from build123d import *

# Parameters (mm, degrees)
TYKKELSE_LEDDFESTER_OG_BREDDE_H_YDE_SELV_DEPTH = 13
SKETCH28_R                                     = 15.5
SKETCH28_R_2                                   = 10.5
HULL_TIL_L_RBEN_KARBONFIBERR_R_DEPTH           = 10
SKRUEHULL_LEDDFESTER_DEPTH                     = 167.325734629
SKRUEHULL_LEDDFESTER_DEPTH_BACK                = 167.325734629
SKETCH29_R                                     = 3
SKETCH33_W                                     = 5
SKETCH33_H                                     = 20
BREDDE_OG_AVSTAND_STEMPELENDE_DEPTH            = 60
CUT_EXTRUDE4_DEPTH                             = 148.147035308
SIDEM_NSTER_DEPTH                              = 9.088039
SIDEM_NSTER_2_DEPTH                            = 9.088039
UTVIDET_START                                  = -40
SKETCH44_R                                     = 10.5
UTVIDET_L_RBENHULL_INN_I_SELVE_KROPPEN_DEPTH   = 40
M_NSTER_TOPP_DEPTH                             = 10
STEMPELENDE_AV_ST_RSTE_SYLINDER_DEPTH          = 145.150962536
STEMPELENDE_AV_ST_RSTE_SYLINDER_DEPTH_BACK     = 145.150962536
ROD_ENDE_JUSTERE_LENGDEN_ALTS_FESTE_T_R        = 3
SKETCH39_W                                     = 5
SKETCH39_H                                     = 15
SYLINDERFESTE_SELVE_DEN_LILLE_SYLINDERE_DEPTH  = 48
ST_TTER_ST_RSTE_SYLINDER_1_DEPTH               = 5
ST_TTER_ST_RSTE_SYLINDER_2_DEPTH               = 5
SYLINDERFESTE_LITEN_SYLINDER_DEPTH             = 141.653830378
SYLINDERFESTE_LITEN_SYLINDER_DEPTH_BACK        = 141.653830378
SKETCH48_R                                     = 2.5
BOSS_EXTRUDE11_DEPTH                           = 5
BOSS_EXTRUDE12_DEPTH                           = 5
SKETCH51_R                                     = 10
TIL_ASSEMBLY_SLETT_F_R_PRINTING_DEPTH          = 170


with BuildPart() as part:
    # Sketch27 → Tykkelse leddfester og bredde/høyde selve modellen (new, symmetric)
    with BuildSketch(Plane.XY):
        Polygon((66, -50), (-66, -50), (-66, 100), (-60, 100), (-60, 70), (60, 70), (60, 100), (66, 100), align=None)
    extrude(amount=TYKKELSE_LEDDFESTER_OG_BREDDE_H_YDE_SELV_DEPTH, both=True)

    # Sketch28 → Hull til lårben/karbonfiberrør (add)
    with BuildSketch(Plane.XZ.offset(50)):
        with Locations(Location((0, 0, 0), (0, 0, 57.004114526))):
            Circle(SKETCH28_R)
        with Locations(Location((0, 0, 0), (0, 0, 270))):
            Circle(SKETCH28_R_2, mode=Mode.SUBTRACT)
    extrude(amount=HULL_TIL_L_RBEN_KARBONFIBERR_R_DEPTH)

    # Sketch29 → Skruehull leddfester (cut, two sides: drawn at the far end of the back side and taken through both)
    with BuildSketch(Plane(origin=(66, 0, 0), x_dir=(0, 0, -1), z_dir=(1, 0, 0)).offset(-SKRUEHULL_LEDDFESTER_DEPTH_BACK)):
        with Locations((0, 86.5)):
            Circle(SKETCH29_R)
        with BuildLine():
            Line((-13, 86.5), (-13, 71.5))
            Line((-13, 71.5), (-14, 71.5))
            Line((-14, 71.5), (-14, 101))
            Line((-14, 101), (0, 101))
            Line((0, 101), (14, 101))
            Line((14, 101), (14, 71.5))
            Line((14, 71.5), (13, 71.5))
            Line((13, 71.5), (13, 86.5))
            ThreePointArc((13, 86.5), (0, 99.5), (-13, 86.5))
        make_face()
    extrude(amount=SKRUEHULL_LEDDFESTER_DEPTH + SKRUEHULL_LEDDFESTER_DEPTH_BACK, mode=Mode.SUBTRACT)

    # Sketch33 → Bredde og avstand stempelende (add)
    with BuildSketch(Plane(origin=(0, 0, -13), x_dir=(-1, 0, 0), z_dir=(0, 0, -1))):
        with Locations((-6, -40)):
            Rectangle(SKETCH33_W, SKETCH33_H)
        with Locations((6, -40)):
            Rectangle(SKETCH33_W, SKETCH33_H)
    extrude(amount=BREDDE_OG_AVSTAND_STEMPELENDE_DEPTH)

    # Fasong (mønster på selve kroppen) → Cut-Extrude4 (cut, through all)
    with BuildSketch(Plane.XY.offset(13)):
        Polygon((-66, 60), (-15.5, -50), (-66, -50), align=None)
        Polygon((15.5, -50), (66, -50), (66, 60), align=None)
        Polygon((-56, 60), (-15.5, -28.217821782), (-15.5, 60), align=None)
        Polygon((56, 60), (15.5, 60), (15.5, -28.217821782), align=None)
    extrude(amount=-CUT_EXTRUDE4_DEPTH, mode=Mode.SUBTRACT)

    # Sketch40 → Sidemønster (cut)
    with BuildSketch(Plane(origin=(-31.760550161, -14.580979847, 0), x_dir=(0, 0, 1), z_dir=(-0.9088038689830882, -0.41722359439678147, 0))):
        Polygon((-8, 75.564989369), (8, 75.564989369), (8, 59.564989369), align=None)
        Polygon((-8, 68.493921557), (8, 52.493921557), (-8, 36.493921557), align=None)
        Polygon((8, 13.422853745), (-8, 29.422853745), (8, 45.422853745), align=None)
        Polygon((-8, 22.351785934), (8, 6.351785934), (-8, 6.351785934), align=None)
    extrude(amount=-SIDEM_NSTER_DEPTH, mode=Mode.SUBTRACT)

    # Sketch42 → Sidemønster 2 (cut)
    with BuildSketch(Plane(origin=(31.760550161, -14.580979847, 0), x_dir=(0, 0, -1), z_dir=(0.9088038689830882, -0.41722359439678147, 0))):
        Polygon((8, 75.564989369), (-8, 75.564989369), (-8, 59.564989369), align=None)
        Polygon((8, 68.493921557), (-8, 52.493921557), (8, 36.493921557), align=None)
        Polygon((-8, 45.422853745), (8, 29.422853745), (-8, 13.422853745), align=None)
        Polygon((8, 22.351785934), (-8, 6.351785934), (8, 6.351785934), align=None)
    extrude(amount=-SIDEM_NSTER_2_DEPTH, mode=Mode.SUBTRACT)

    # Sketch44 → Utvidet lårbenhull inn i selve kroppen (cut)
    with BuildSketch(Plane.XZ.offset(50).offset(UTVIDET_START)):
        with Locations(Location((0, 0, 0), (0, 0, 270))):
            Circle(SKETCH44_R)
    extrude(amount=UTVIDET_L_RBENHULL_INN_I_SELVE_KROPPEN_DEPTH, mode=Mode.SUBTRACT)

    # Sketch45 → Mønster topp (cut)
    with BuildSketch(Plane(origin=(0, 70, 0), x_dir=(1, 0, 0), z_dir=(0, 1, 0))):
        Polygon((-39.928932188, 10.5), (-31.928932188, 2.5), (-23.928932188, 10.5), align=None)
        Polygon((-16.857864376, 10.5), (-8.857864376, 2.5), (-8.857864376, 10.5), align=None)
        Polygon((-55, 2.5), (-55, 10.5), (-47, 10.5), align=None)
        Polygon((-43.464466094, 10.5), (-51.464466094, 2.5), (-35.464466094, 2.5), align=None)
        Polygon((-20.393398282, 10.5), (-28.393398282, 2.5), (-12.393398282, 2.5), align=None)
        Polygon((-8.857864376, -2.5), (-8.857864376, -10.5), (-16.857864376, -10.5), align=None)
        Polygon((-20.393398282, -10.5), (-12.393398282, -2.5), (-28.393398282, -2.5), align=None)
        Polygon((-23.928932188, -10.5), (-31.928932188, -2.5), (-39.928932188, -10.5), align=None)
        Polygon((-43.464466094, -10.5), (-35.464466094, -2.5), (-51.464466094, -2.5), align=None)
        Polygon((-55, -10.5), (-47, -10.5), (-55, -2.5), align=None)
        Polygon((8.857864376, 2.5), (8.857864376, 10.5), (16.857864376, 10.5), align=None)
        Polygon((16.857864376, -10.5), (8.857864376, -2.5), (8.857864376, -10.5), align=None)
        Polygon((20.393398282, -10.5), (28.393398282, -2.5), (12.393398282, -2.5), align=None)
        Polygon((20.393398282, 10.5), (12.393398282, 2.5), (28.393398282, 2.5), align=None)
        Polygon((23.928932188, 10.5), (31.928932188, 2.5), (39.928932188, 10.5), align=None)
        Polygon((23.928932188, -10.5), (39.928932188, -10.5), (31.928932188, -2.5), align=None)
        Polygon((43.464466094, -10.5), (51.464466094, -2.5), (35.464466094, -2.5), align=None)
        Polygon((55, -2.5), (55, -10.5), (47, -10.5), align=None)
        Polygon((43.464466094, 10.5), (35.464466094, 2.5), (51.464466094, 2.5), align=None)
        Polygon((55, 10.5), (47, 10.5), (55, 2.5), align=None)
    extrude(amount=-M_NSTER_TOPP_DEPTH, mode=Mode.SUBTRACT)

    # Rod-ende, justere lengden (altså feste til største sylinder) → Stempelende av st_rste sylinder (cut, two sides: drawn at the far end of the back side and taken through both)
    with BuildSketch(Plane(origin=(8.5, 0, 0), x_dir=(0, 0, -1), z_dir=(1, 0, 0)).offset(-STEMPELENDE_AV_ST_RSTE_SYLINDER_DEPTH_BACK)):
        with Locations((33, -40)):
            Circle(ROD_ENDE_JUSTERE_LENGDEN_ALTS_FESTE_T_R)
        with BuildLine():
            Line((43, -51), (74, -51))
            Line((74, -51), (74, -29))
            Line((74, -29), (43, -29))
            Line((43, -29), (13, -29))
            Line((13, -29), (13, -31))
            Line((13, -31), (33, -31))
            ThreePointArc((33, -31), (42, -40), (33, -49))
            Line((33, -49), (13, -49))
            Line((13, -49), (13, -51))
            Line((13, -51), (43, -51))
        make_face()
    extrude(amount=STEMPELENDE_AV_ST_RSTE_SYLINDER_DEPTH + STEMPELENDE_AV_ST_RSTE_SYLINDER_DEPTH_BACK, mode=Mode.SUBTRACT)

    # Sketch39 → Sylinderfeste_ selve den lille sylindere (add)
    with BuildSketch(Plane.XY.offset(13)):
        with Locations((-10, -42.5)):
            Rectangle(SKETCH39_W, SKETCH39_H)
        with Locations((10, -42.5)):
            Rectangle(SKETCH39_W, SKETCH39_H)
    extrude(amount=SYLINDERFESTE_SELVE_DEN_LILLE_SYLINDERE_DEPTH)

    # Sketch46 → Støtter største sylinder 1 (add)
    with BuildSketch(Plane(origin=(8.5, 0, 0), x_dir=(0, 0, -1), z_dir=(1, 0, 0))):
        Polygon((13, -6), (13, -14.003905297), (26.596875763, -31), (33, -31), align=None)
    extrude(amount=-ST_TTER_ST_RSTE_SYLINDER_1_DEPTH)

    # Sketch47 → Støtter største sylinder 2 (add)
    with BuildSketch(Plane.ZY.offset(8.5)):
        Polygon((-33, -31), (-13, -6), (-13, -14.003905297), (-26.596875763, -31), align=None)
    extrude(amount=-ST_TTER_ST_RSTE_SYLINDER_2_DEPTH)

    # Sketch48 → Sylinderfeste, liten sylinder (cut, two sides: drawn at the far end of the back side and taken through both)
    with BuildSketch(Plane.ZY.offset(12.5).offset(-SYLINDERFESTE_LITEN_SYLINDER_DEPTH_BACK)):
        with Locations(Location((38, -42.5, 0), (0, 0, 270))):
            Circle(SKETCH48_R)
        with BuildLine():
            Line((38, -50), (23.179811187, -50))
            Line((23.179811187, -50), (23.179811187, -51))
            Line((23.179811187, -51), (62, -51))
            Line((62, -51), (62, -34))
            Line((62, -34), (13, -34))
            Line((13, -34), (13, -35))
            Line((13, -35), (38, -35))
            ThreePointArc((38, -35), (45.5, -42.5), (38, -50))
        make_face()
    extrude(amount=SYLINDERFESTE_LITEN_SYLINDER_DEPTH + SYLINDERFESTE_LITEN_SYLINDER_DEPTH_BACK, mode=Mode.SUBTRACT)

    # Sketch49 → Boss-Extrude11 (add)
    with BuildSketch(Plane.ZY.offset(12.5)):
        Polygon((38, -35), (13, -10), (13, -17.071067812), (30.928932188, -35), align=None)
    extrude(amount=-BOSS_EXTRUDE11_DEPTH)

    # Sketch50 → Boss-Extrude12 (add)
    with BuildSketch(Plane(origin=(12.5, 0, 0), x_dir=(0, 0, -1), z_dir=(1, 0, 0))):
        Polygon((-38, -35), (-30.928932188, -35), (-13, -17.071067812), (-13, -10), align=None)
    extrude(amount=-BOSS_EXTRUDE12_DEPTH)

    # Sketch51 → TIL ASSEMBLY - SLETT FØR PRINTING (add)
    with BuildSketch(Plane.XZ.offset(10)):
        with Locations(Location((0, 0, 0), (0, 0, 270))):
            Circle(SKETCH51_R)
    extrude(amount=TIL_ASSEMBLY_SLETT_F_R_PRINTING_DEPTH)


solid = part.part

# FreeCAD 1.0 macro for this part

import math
import FreeCAD as App
import Part
import Sketcher

V = App.Vector
Q = App.Units.Quantity


def add_polygon(sketch, points):
    """Adds a closed chain of lines whose ends are joined by coincident constraints."""
    first, n = sketch.GeometryCount, len(points)
    for a, b in zip(points, points[1:] + points[:1]):
        sketch.addGeometry(Part.LineSegment(App.Vector(*a, 0), App.Vector(*b, 0)), False)
    for i in range(n):
        sketch.addConstraint(Sketcher.Constraint("Coincident", first + i, 2, first + (i + 1) % n, 1))

doc = App.newDocument("Part")
body = doc.addObject("PartDesign::Body", "Body")

sketch1 = body.newObject("Sketcher::SketchObject", "Sketch")
sketch1.AttachmentSupport = (doc.getObject("XY_Plane"), [""])
sketch1.MapMode = "FlatFace"
add_polygon(sketch1, [(-66, -50), (66, -50), (66, 100), (60, 100), (60, 70), (-60, 70), (-60, 100), (-66, 100)])
sketch1.addConstraint(Sketcher.Constraint("Horizontal", 0))
sketch1.addConstraint(Sketcher.Constraint("Vertical", 1))
sketch1.addConstraint(Sketcher.Constraint("Horizontal", 2))
sketch1.addConstraint(Sketcher.Constraint("Vertical", 3))
sketch1.addConstraint(Sketcher.Constraint("Horizontal", 4))
sketch1.addConstraint(Sketcher.Constraint("Vertical", 5))
sketch1.addConstraint(Sketcher.Constraint("Horizontal", 6))
sketch1.addConstraint(Sketcher.Constraint("Vertical", 7))
sketch1.addConstraint(Sketcher.Constraint("Symmetric", 2, 2, 5, 2, -2))
sketch1.addConstraint(Sketcher.Constraint("Equal", 2, 6))
sketch1.addConstraint(Sketcher.Constraint("DistanceX", 0, 1, 0, 2, Q("132 mm")))
sketch1.addConstraint(Sketcher.Constraint("DistanceX", 2, 2, 2, 1, Q("6 mm")))
sketch1.addConstraint(Sketcher.Constraint("DistanceY", 1, 1, 1, 2, Q("150 mm")))
sketch1.addConstraint(Sketcher.Constraint("DistanceY", 3, 2, 3, 1, Q("30 mm")))
sketch1.addConstraint(Sketcher.Constraint("DistanceY", 0, 2, -1, 1, Q("50 mm")))
pad1 = body.newObject("PartDesign::Pad", "Pad")
pad1.Profile = sketch1
pad1.Length = 26
pad1.Midplane = True

sketch2 = body.newObject("Sketcher::SketchObject", "Sketch001")
sketch2.AttachmentSupport = (doc.getObject("XZ_Plane"), [""])
sketch2.MapMode = "FlatFace"
sketch2.AttachmentOffset = App.Placement(V(0, 0, 50), App.Rotation())
sketch2.addGeometry(Part.Circle(V(0, 0, 0), V(0, 0, 1), 15.5), False)
sketch2.addGeometry(Part.Circle(V(0, 0, 0), V(0, 0, 1), 10.5), False)
sketch2.addConstraint(Sketcher.Constraint("Coincident", 0, 3, -1, 1))
sketch2.addConstraint(Sketcher.Constraint("Coincident", 1, 3, -1, 1))
sketch2.addConstraint(Sketcher.Constraint("Diameter", 0, Q("31 mm")))
sketch2.addConstraint(Sketcher.Constraint("Diameter", 1, Q("21 mm")))
pad2 = body.newObject("PartDesign::Pad", "Pad001")
pad2.Profile = sketch2
pad2.Length = 10

sketch3 = body.newObject("Sketcher::SketchObject", "Sketch002")
sketch3.AttachmentSupport = (doc.getObject("YZ_Plane"), [""])
sketch3.MapMode = "FlatFace"
sketch3.AttachmentOffset = App.Placement(V(0, 0, 66), App.Rotation())
sketch3.addGeometry(Part.Circle(V(86.5, 0, 0), V(0, 0, 1), 3), False)
sketch3.addGeometry(Part.LineSegment(V(71.5, 13, 0), V(86.5, 13, 0)), False)
sketch3.addGeometry(Part.ArcOfCircle(Part.Circle(V(86.5, 0, 0), V(0, 0, 1), 13), math.radians(-90), math.radians(90)), False)
sketch3.addGeometry(Part.LineSegment(V(86.5, -13, 0), V(71.5, -13, 0)), False)
sketch3.addGeometry(Part.LineSegment(V(71.5, -13, 0), V(71.5, -14, 0)), False)
sketch3.addGeometry(Part.LineSegment(V(71.5, -14, 0), V(101, -14, 0)), False)
sketch3.addGeometry(Part.LineSegment(V(101, -14, 0), V(101, 14, 0)), False)
sketch3.addGeometry(Part.LineSegment(V(101, 14, 0), V(71.5, 14, 0)), False)
sketch3.addGeometry(Part.LineSegment(V(71.5, 14, 0), V(71.5, 13, 0)), False)
sketch3.addConstraint(Sketcher.Constraint("Tangent", 1, 2, 2, 2))
sketch3.addConstraint(Sketcher.Constraint("Tangent", 2, 1, 3, 1))
sketch3.addConstraint(Sketcher.Constraint("Coincident", 3, 2, 4, 1))
sketch3.addConstraint(Sketcher.Constraint("Coincident", 4, 2, 5, 1))
sketch3.addConstraint(Sketcher.Constraint("Coincident", 5, 2, 6, 1))
sketch3.addConstraint(Sketcher.Constraint("Coincident", 6, 2, 7, 1))
sketch3.addConstraint(Sketcher.Constraint("Coincident", 7, 2, 8, 1))
sketch3.addConstraint(Sketcher.Constraint("Coincident", 8, 2, 1, 1))
sketch3.addConstraint(Sketcher.Constraint("Horizontal", 1))
sketch3.addConstraint(Sketcher.Constraint("Horizontal", 3))
sketch3.addConstraint(Sketcher.Constraint("Vertical", 4))
sketch3.addConstraint(Sketcher.Constraint("Horizontal", 5))
sketch3.addConstraint(Sketcher.Constraint("Vertical", 6))
sketch3.addConstraint(Sketcher.Constraint("Horizontal", 7))
sketch3.addConstraint(Sketcher.Constraint("Vertical", 8))
sketch3.addConstraint(Sketcher.Constraint("Coincident", 2, 3, 0, 3))
sketch3.addConstraint(Sketcher.Constraint("Symmetric", 4, 2, 7, 2, -1))
sketch3.addConstraint(Sketcher.Constraint("PointOnObject", 0, 3, -1))
sketch3.addConstraint(Sketcher.Constraint("Diameter", 0, Q("6 mm")))
sketch3.addConstraint(Sketcher.Constraint("Radius", 2, Q("13 mm")))
sketch3.addConstraint(Sketcher.Constraint("DistanceX", 1, 1, 1, 2, Q("15 mm")))
sketch3.addConstraint(Sketcher.Constraint("DistanceY", 4, 2, 4, 1, Q("1 mm")))
sketch3.addConstraint(Sketcher.Constraint("DistanceX", 5, 1, 5, 2, Q("29.5 mm")))
sketch3.addConstraint(Sketcher.Constraint("DistanceX", -1, 1, 5, 2, Q("101 mm")))
pocket1 = body.newObject("PartDesign::Pocket", "Pocket")
pocket1.Profile = sketch3
pocket1.Type = "ThroughAll"
pocket1.Midplane = True

sketch4 = body.newObject("Sketcher::SketchObject", "Sketch003")
sketch4.AttachmentSupport = (doc.getObject("XY_Plane"), [""])
sketch4.MapMode = "FlatFace"
sketch4.AttachmentOffset = App.Placement(V(0, 0, -13), App.Rotation())
add_polygon(sketch4, [(8.5, -30), (8.5, -50), (3.5, -50), (3.5, -30)])
add_polygon(sketch4, [(-3.5, -30), (-3.5, -50), (-8.5, -50), (-8.5, -30)])
sketch4.addConstraint(Sketcher.Constraint("Vertical", 0))
sketch4.addConstraint(Sketcher.Constraint("Horizontal", 1))
sketch4.addConstraint(Sketcher.Constraint("Vertical", 2))
sketch4.addConstraint(Sketcher.Constraint("Horizontal", 3))
sketch4.addConstraint(Sketcher.Constraint("Vertical", 4))
sketch4.addConstraint(Sketcher.Constraint("Horizontal", 5))
sketch4.addConstraint(Sketcher.Constraint("Vertical", 6))
sketch4.addConstraint(Sketcher.Constraint("Horizontal", 7))
sketch4.addConstraint(Sketcher.Constraint("Symmetric", 1, 2, 4, 2, -2))
sketch4.addConstraint(Sketcher.Constraint("Symmetric", 3, 2, 6, 2, -2))
sketch4.addConstraint(Sketcher.Constraint("DistanceX", 1, 2, 1, 1, Q("5 mm")))
sketch4.addConstraint(Sketcher.Constraint("DistanceY", 0, 2, 0, 1, Q("20 mm")))
sketch4.addConstraint(Sketcher.Constraint("DistanceY", 0, 2, -1, 1, Q("50 mm")))
sketch4.addConstraint(Sketcher.Constraint("DistanceX", 4, 2, 1, 2, Q("7 mm")))
pad3 = body.newObject("PartDesign::Pad", "Pad002")
pad3.Profile = sketch4
pad3.Length = 60
pad3.Reversed = True

sketch5 = body.newObject("Sketcher::SketchObject", "Sketch004")
sketch5.AttachmentSupport = (doc.getObject("XY_Plane"), [""])
sketch5.MapMode = "FlatFace"
sketch5.AttachmentOffset = App.Placement(V(0, 0, 13), App.Rotation())
add_polygon(sketch5, [(-15.5, -50), (-66, 60), (-66, -50)])
add_polygon(sketch5, [(15.5, -50), (66, -50), (66, 60)])
add_polygon(sketch5, [(-56, 60), (-15.5, -28.217822), (-15.5, 60)])
add_polygon(sketch5, [(56, 60), (15.5, 60), (15.5, -28.217822)])
sketch5.addConstraint(Sketcher.Constraint("Vertical", 1))
sketch5.addConstraint(Sketcher.Constraint("Horizontal", 2))
sketch5.addConstraint(Sketcher.Constraint("Horizontal", 3))
sketch5.addConstraint(Sketcher.Constraint("Vertical", 4))
sketch5.addConstraint(Sketcher.Constraint("Vertical", 7))
sketch5.addConstraint(Sketcher.Constraint("Horizontal", 8))
sketch5.addConstraint(Sketcher.Constraint("Horizontal", 9))
sketch5.addConstraint(Sketcher.Constraint("Vertical", 10))
sketch5.addConstraint(Sketcher.Constraint("Symmetric", 1, 2, 3, 2, -2))
sketch5.addConstraint(Sketcher.Constraint("Symmetric", 7, 2, 9, 2, -2))
sketch5.addConstraint(Sketcher.Constraint("Parallel", 0, 6))
sketch5.addConstraint(Sketcher.Constraint("Parallel", 5, 11))
sketch5.addConstraint(Sketcher.Constraint("Horizontal", 0, 2, 4, 2))
sketch5.addConstraint(Sketcher.Constraint("Horizontal", 4, 2, 7, 2))
sketch5.addConstraint(Sketcher.Constraint("Horizontal", 6, 2, 10, 2))
sketch5.addConstraint(Sketcher.Constraint("Vertical", 2, 2, 6, 2))
sketch5.addConstraint(Sketcher.Constraint("Vertical", 5, 2, 9, 2))
sketch5.addConstraint(Sketcher.Constraint("DistanceY", 1, 2, 1, 1, Q("110 mm")))
sketch5.addConstraint(Sketcher.Constraint("DistanceX", 2, 1, 2, 2, Q("50.5 mm")))
sketch5.addConstraint(Sketcher.Constraint("DistanceX", 8, 2, 8, 1, Q("40.5 mm")))
sketch5.addConstraint(Sketcher.Constraint("DistanceX", 0, 2, -1, 1, Q("66 mm")))
sketch5.addConstraint(Sketcher.Constraint("DistanceY", -1, 1, 0, 2, Q("60 mm")))
pocket2 = body.newObject("PartDesign::Pocket", "Pocket001")
pocket2.Profile = sketch5
pocket2.Type = "ThroughAll"

sketch6 = body.newObject("Sketcher::SketchObject", "Sketch005")
sketch6.Placement = App.Placement(V(-31.76055, -14.58098, 0), App.Rotation(V(0, 0, 1), V(-0.417223594, 0.908803869, 0), V(-0.908803869, -0.417223594, 0), "ZXY"))
add_polygon(sketch6, [(8, 75.564989), (-8, 75.564989), (8, 59.564989)])
add_polygon(sketch6, [(8, 52.493922), (-8, 68.493922), (-8, 36.493922)])
add_polygon(sketch6, [(-8, 29.422854), (8, 13.422854), (8, 45.422854)])
add_polygon(sketch6, [(8, 6.351786), (-8, 22.351786), (-8, 6.351786)])
sketch6.addConstraint(Sketcher.Constraint("Horizontal", 0))
sketch6.addConstraint(Sketcher.Constraint("Vertical", 2))
sketch6.addConstraint(Sketcher.Constraint("Vertical", 4))
sketch6.addConstraint(Sketcher.Constraint("Vertical", 7))
sketch6.addConstraint(Sketcher.Constraint("Vertical", 10))
sketch6.addConstraint(Sketcher.Constraint("Horizontal", 11))
sketch6.addConstraint(Sketcher.Constraint("Parallel", 1, 3))
sketch6.addConstraint(Sketcher.Constraint("Perpendicular", 3, 5))
sketch6.addConstraint(Sketcher.Constraint("Perpendicular", 5, 6))
sketch6.addConstraint(Sketcher.Constraint("Perpendicular", 6, 8))
sketch6.addConstraint(Sketcher.Constraint("Perpendicular", 8, 9))
sketch6.addConstraint(Sketcher.Constraint("Vertical", 0, 2, 3, 2))
sketch6.addConstraint(Sketcher.Constraint("Vertical", 2, 2, 5, 2))
sketch6.addConstraint(Sketcher.Constraint("Vertical", 5, 2, 6, 2))
sketch6.addConstraint(Sketcher.Constraint("Vertical", 4, 2, 8, 2))
sketch6.addConstraint(Sketcher.Constraint("Vertical", 8, 2, 9, 2))
sketch6.addConstraint(Sketcher.Constraint("Vertical", 7, 2, 11, 2))
sketch6.addConstraint(Sketcher.Constraint("Equal", 11, 2))
sketch6.addConstraint(Sketcher.Constraint("DistanceX", 0, 2, 0, 1, Q("16 mm")))
sketch6.addConstraint(Sketcher.Constraint("DistanceX", 0, 2, -1, 1, Q("8 mm")))
sketch6.addConstraint(Sketcher.Constraint("DistanceY", -1, 1, 0, 2, Q("75.564989 mm")))
sketch6.addConstraint(Sketcher.Constraint("DistanceY", -1, 1, 3, 2, Q("68.493922 mm")))
sketch6.addConstraint(Sketcher.Constraint("DistanceY", -1, 1, 6, 2, Q("13.422854 mm")))
sketch6.addConstraint(Sketcher.Constraint("DistanceY", -1, 1, 9, 2, Q("22.351786 mm")))
pocket3 = body.newObject("PartDesign::Pocket", "Pocket002")
pocket3.Profile = sketch6
pocket3.Length = 9.088039

sketch7 = body.newObject("Sketcher::SketchObject", "Sketch006")
sketch7.Placement = App.Placement(V(31.76055, -14.58098, 0), App.Rotation(V(0, 0, -1), V(0.417223594, 0.908803869, 0), V(0.908803869, -0.417223594, 0), "ZXY"))
add_polygon(sketch7, [(8, 75.564989), (-8, 75.564989), (-8, 59.564989)])
add_polygon(sketch7, [(8, 68.493922), (-8, 52.493922), (8, 36.493922)])
add_polygon(sketch7, [(8, 29.422854), (-8, 45.422854), (-8, 13.422854)])
add_polygon(sketch7, [(8, 22.351786), (-8, 6.351786), (8, 6.351786)])
sketch7.addConstraint(Sketcher.Constraint("Horizontal", 0))
sketch7.addConstraint(Sketcher.Constraint("Vertical", 1))
sketch7.addConstraint(Sketcher.Constraint("Vertical", 5))
sketch7.addConstraint(Sketcher.Constraint("Vertical", 7))
sketch7.addConstraint(Sketcher.Constraint("Horizontal", 10))
sketch7.addConstraint(Sketcher.Constraint("Vertical", 11))
sketch7.addConstraint(Sketcher.Constraint("Parallel", 2, 3))
sketch7.addConstraint(Sketcher.Constraint("Perpendicular", 3, 4))
sketch7.addConstraint(Sketcher.Constraint("Parallel", 4, 6))
sketch7.addConstraint(Sketcher.Constraint("Perpendicular", 6, 8))
sketch7.addConstraint(Sketcher.Constraint("Parallel", 8, 9))
sketch7.addConstraint(Sketcher.Constraint("Vertical", 1, 2, 3, 2))
sketch7.addConstraint(Sketcher.Constraint("Vertical", 2, 2, 4, 2))
sketch7.addConstraint(Sketcher.Constraint("Vertical", 3, 2, 6, 2))
sketch7.addConstraint(Sketcher.Constraint("Vertical", 5, 2, 8, 2))
sketch7.addConstraint(Sketcher.Constraint("Vertical", 7, 2, 9, 2))
sketch7.addConstraint(Sketcher.Constraint("Vertical", 8, 2, 10, 2))
sketch7.addConstraint(Sketcher.Constraint("Equal", 10, 1))
sketch7.addConstraint(Sketcher.Constraint("DistanceX", 0, 2, 0, 1, Q("16 mm")))
sketch7.addConstraint(Sketcher.Constraint("DistanceX", 0, 2, -1, 1, Q("8 mm")))
sketch7.addConstraint(Sketcher.Constraint("DistanceY", -1, 1, 0, 2, Q("75.564989 mm")))
sketch7.addConstraint(Sketcher.Constraint("DistanceY", -1, 1, 3, 2, Q("52.493922 mm")))
sketch7.addConstraint(Sketcher.Constraint("DistanceY", -1, 1, 6, 2, Q("45.422854 mm")))
sketch7.addConstraint(Sketcher.Constraint("DistanceY", -1, 1, 9, 2, Q("6.351786 mm")))
pocket4 = body.newObject("PartDesign::Pocket", "Pocket003")
pocket4.Profile = sketch7
pocket4.Length = 9.088039

sketch8 = body.newObject("Sketcher::SketchObject", "Sketch007")
sketch8.AttachmentSupport = (doc.getObject("XZ_Plane"), [""])
sketch8.MapMode = "FlatFace"
sketch8.AttachmentOffset = App.Placement(V(0, 0, 10), App.Rotation())
sketch8.addGeometry(Part.Circle(V(0, 0, 0), V(0, 0, 1), 10.5), False)
sketch8.addConstraint(Sketcher.Constraint("Coincident", 0, 3, -1, 1))
sketch8.addConstraint(Sketcher.Constraint("Diameter", 0, Q("21 mm")))
pocket5 = body.newObject("PartDesign::Pocket", "Pocket004")
pocket5.Profile = sketch8
pocket5.Length = 40
pocket5.Reversed = True

sketch9 = body.newObject("Sketcher::SketchObject", "Sketch008")
sketch9.AttachmentSupport = (doc.getObject("XZ_Plane"), [""])
sketch9.MapMode = "FlatFace"
sketch9.AttachmentOffset = App.Placement(V(0, 0, -70), App.Rotation())
add_polygon(sketch9, [(-39.928932, -10.5), (-31.928932, -2.5), (-23.928932, -10.5)])
add_polygon(sketch9, [(-16.857864, -10.5), (-8.857864, -2.5), (-8.857864, -10.5)])
add_polygon(sketch9, [(-55, -10.5), (-55, -2.5), (-47, -10.5)])
add_polygon(sketch9, [(-43.464466, -10.5), (-51.464466, -2.5), (-35.464466, -2.5)])
add_polygon(sketch9, [(-20.393398, -10.5), (-28.393398, -2.5), (-12.393398, -2.5)])
add_polygon(sketch9, [(-8.857864, 10.5), (-8.857864, 2.5), (-16.857864, 10.5)])
add_polygon(sketch9, [(-20.393398, 10.5), (-12.393398, 2.5), (-28.393398, 2.5)])
add_polygon(sketch9, [(-23.928932, 10.5), (-31.928932, 2.5), (-39.928932, 10.5)])
add_polygon(sketch9, [(-43.464466, 10.5), (-35.464466, 2.5), (-51.464466, 2.5)])
add_polygon(sketch9, [(-55, 10.5), (-47, 10.5), (-55, 2.5)])
add_polygon(sketch9, [(8.857864, -10.5), (8.857864, -2.5), (16.857864, -10.5)])
add_polygon(sketch9, [(16.857864, 10.5), (8.857864, 2.5), (8.857864, 10.5)])
add_polygon(sketch9, [(20.393398, 10.5), (28.393398, 2.5), (12.393398, 2.5)])
add_polygon(sketch9, [(20.393398, -10.5), (12.393398, -2.5), (28.393398, -2.5)])
add_polygon(sketch9, [(23.928932, -10.5), (31.928932, -2.5), (39.928932, -10.5)])
add_polygon(sketch9, [(23.928932, 10.5), (39.928932, 10.5), (31.928932, 2.5)])
add_polygon(sketch9, [(43.464466, 10.5), (51.464466, 2.5), (35.464466, 2.5)])
add_polygon(sketch9, [(55, 10.5), (55, 2.5), (47, 10.5)])
add_polygon(sketch9, [(43.464466, -10.5), (35.464466, -2.5), (51.464466, -2.5)])
add_polygon(sketch9, [(55, -10.5), (47, -10.5), (55, -2.5)])
sketch9.addConstraint(Sketcher.Constraint("Horizontal", 2))
sketch9.addConstraint(Sketcher.Constraint("Vertical", 4))
sketch9.addConstraint(Sketcher.Constraint("Horizontal", 5))
sketch9.addConstraint(Sketcher.Constraint("Vertical", 6))
sketch9.addConstraint(Sketcher.Constraint("Horizontal", 8))
sketch9.addConstraint(Sketcher.Constraint("Horizontal", 10))
sketch9.addConstraint(Sketcher.Constraint("Horizontal", 13))
sketch9.addConstraint(Sketcher.Constraint("Vertical", 15))
sketch9.addConstraint(Sketcher.Constraint("Horizontal", 17))
sketch9.addConstraint(Sketcher.Constraint("Horizontal", 19))
sketch9.addConstraint(Sketcher.Constraint("Horizontal", 23))
sketch9.addConstraint(Sketcher.Constraint("Horizontal", 25))
sketch9.addConstraint(Sketcher.Constraint("Horizontal", 27))
sketch9.addConstraint(Sketcher.Constraint("Vertical", 29))
sketch9.addConstraint(Sketcher.Constraint("Vertical", 30))
sketch9.addConstraint(Sketcher.Constraint("Horizontal", 32))
sketch9.addConstraint(Sketcher.Constraint("Vertical", 34))
sketch9.addConstraint(Sketcher.Constraint("Horizontal", 35))
sketch9.addConstraint(Sketcher.Constraint("Horizontal", 37))
sketch9.addConstraint(Sketcher.Constraint("Horizontal", 40))
sketch9.addConstraint(Sketcher.Constraint("Horizontal", 44))
sketch9.addConstraint(Sketcher.Constraint("Horizontal", 45))
sketch9.addConstraint(Sketcher.Constraint("Horizontal", 49))
sketch9.addConstraint(Sketcher.Constraint("Vertical", 51))
sketch9.addConstraint(Sketcher.Constraint("Horizontal", 53))
sketch9.addConstraint(Sketcher.Constraint("Horizontal", 55))
sketch9.addConstraint(Sketcher.Constraint("Horizontal", 57))
sketch9.addConstraint(Sketcher.Constraint("Vertical", 59))
sketch9.addConstraint(Sketcher.Constraint("Symmetric", 15, 2, 30, 2, -1, 1))
sketch9.addConstraint(Sketcher.Constraint("Symmetric", 16, 2, 31, 2, -1, 1))
sketch9.addConstraint(Sketcher.Constraint("Symmetric", 3, 2, 33, 2, -1, 1))
sketch9.addConstraint(Sketcher.Constraint("Symmetric", 5, 2, 35, 2, -1, 1))
sketch9.addConstraint(Sketcher.Constraint("Symmetric", 12, 2, 36, 2, -1, 1))
sketch9.addConstraint(Sketcher.Constraint("Symmetric", 14, 2, 38, 2, -1, 1))
sketch9.addConstraint(Sketcher.Constraint("Symmetric", 18, 2, 39, 2, -1, 1))
sketch9.addConstraint(Sketcher.Constraint("Symmetric", 20, 2, 41, 2, -1, 1))
sketch9.addConstraint(Sketcher.Constraint("Symmetric", 21, 2, 42, 2, -1, 1))
sketch9.addConstraint(Sketcher.Constraint("Symmetric", 22, 2, 43, 2, -1, 1))
sketch9.addConstraint(Sketcher.Constraint("Symmetric", 2, 2, 45, 2, -1, 1))
sketch9.addConstraint(Sketcher.Constraint("Symmetric", 0, 2, 46, 2, -1, 1))
sketch9.addConstraint(Sketcher.Constraint("Symmetric", 9, 2, 48, 2, -1, 1))
sketch9.addConstraint(Sketcher.Constraint("Symmetric", 11, 2, 50, 2, -1, 1))
sketch9.addConstraint(Sketcher.Constraint("Symmetric", 6, 2, 51, 2, -1, 1))
sketch9.addConstraint(Sketcher.Constraint("Symmetric", 7, 2, 52, 2, -1, 1))
sketch9.addConstraint(Sketcher.Constraint("Symmetric", 24, 2, 54, 2, -1, 1))
sketch9.addConstraint(Sketcher.Constraint("Symmetric", 26, 2, 56, 2, -1, 1))
sketch9.addConstraint(Sketcher.Constraint("Symmetric", 27, 2, 57, 2, -1, 1))
sketch9.addConstraint(Sketcher.Constraint("Symmetric", 28, 2, 58, 2, -1, 1))
sketch9.addConstraint(Sketcher.Constraint("Symmetric", 3, 2, 30, 2, -2))
sketch9.addConstraint(Sketcher.Constraint("Symmetric", 5, 2, 31, 2, -2))
sketch9.addConstraint(Sketcher.Constraint("Symmetric", 19, 2, 36, 2, -2))
sketch9.addConstraint(Sketcher.Constraint("Symmetric", 20, 2, 38, 2, -2))
sketch9.addConstraint(Sketcher.Constraint("Symmetric", 0, 2, 42, 2, -2))
sketch9.addConstraint(Sketcher.Constraint("Symmetric", 2, 2, 43, 2, -2))
sketch9.addConstraint(Sketcher.Constraint("Symmetric", 25, 2, 48, 2, -2))
sketch9.addConstraint(Sketcher.Constraint("Symmetric", 26, 2, 50, 2, -2))
sketch9.addConstraint(Sketcher.Constraint("Symmetric", 28, 2, 51, 2, -2))
sketch9.addConstraint(Sketcher.Constraint("Symmetric", 27, 2, 52, 2, -2))
sketch9.addConstraint(Sketcher.Constraint("Perpendicular", 0, 1))
sketch9.addConstraint(Sketcher.Constraint("Perpendicular", 1, 3))
sketch9.addConstraint(Sketcher.Constraint("Perpendicular", 3, 7))
sketch9.addConstraint(Sketcher.Constraint("Parallel", 7, 9))
sketch9.addConstraint(Sketcher.Constraint("Perpendicular", 9, 11))
sketch9.addConstraint(Sketcher.Constraint("Perpendicular", 11, 12))
sketch9.addConstraint(Sketcher.Constraint("Perpendicular", 12, 14))
sketch9.addConstraint(Sketcher.Constraint("Perpendicular", 14, 16))
sketch9.addConstraint(Sketcher.Constraint("Parallel", 16, 18))
sketch9.addConstraint(Sketcher.Constraint("Parallel", 20, 21))
sketch9.addConstraint(Sketcher.Constraint("Parallel", 22, 24))
sketch9.addConstraint(Sketcher.Constraint("Perpendicular", 36, 38))
sketch9.addConstraint(Sketcher.Constraint("Perpendicular", 39, 41))
sketch9.addConstraint(Sketcher.Constraint("Parallel", 41, 42))
sketch9.addConstraint(Sketcher.Constraint("Perpendicular", 46, 47))
sketch9.addConstraint(Sketcher.Constraint("Perpendicular", 48, 50))
sketch9.addConstraint(Sketcher.Constraint("Perpendicular", 54, 56))
sketch9.addConstraint(Sketcher.Constraint("Horizontal", 0, 2, 3, 2))
sketch9.addConstraint(Sketcher.Constraint("Horizontal", 2, 2, 4, 2))
sketch9.addConstraint(Sketcher.Constraint("Horizontal", 3, 2, 6, 2))
sketch9.addConstraint(Sketcher.Constraint("Horizontal", 5, 2, 7, 2))
sketch9.addConstraint(Sketcher.Constraint("Horizontal", 6, 2, 9, 2))
sketch9.addConstraint(Sketcher.Constraint("Horizontal", 8, 2, 11, 2))
sketch9.addConstraint(Sketcher.Constraint("Horizontal", 10, 2, 12, 2))
sketch9.addConstraint(Sketcher.Constraint("Horizontal", 11, 2, 14, 2))
sketch9.addConstraint(Sketcher.Constraint("DistanceX", 2, 2, 2, 1, Q("16 mm")))
sketch9.addConstraint(Sketcher.Constraint("DistanceX", 6, 2, -1, 1, Q("55 mm")))
sketch9.addConstraint(Sketcher.Constraint("DistanceY", 3, 2, 15, 2, Q("5 mm")))
sketch9.addConstraint(Sketcher.Constraint("DistanceX", 12, 2, -1, 1, Q("28.393398 mm")))
sketch9.addConstraint(Sketcher.Constraint("DistanceX", 3, 2, 30, 2, Q("17.715729 mm")))
sketch9.addConstraint(Sketcher.Constraint("DistanceX", 0, 2, -1, 1, Q("31.928932 mm")))
sketch9.addConstraint(Sketcher.Constraint("DistanceX", 9, 2, -1, 1, Q("51.464466 mm")))
pocket6 = body.newObject("PartDesign::Pocket", "Pocket005")
pocket6.Profile = sketch9
pocket6.Length = 10
pocket6.Reversed = True

sketch10 = body.newObject("Sketcher::SketchObject", "Sketch009")
sketch10.AttachmentSupport = (doc.getObject("YZ_Plane"), [""])
sketch10.MapMode = "FlatFace"
sketch10.AttachmentOffset = App.Placement(V(0, 0, 8.5), App.Rotation())
sketch10.addGeometry(Part.Circle(V(-40, -33, 0), V(0, 0, 1), 3), False)
sketch10.addGeometry(Part.LineSegment(V(-51, -74, 0), V(-29, -74, 0)), False)
sketch10.addGeometry(Part.LineSegment(V(-29, -74, 0), V(-29, -13, 0)), False)
sketch10.addGeometry(Part.LineSegment(V(-29, -13, 0), V(-31, -13, 0)), False)
sketch10.addGeometry(Part.LineSegment(V(-31, -13, 0), V(-31, -33, 0)), False)
sketch10.addGeometry(Part.ArcOfCircle(Part.Circle(V(-40, -33, 0), V(0, 0, 1), 9), math.radians(180), math.radians(360)), False)
sketch10.addGeometry(Part.LineSegment(V(-49, -33, 0), V(-49, -13, 0)), False)
sketch10.addGeometry(Part.LineSegment(V(-49, -13, 0), V(-51, -13, 0)), False)
sketch10.addGeometry(Part.LineSegment(V(-51, -13, 0), V(-51, -74, 0)), False)
sketch10.addConstraint(Sketcher.Constraint("Coincident", 1, 2, 2, 1))
sketch10.addConstraint(Sketcher.Constraint("Coincident", 2, 2, 3, 1))
sketch10.addConstraint(Sketcher.Constraint("Coincident", 3, 2, 4, 1))
sketch10.addConstraint(Sketcher.Constraint("Tangent", 4, 2, 5, 2))
sketch10.addConstraint(Sketcher.Constraint("Tangent", 5, 1, 6, 1))
sketch10.addConstraint(Sketcher.Constraint("Coincident", 6, 2, 7, 1))
sketch10.addConstraint(Sketcher.Constraint("Coincident", 7, 2, 8, 1))
sketch10.addConstraint(Sketcher.Constraint("Coincident", 8, 2, 1, 1))
sketch10.addConstraint(Sketcher.Constraint("Horizontal", 1))
sketch10.addConstraint(Sketcher.Constraint("Vertical", 2))
sketch10.addConstraint(Sketcher.Constraint("Horizontal", 3))
sketch10.addConstraint(Sketcher.Constraint("Vertical", 4))
sketch10.addConstraint(Sketcher.Constraint("Vertical", 6))
sketch10.addConstraint(Sketcher.Constraint("Horizontal", 7))
sketch10.addConstraint(Sketcher.Constraint("Vertical", 8))
sketch10.addConstraint(Sketcher.Constraint("Coincident", 5, 3, 0, 3))
sketch10.addConstraint(Sketcher.Constraint("Horizontal", 3, 2, 6, 2))
sketch10.addConstraint(Sketcher.Constraint("Equal", 3, 7))
sketch10.addConstraint(Sketcher.Constraint("Diameter", 0, Q("6 mm")))
sketch10.addConstraint(Sketcher.Constraint("Radius", 5, Q("9 mm")))
sketch10.addConstraint(Sketcher.Constraint("DistanceX", 1, 1, 1, 2, Q("22 mm")))
sketch10.addConstraint(Sketcher.Constraint("DistanceY", 2, 1, 2, 2, Q("61 mm")))
sketch10.addConstraint(Sketcher.Constraint("DistanceY", 4, 2, 4, 1, Q("20 mm")))
sketch10.addConstraint(Sketcher.Constraint("DistanceX", 0, 3, -1, 1, Q("40 mm")))
sketch10.addConstraint(Sketcher.Constraint("DistanceY", 0, 3, -1, 1, Q("33 mm")))
pocket7 = body.newObject("PartDesign::Pocket", "Pocket006")
pocket7.Profile = sketch10
pocket7.Type = "ThroughAll"
pocket7.Midplane = True

sketch11 = body.newObject("Sketcher::SketchObject", "Sketch010")
sketch11.AttachmentSupport = (doc.getObject("XY_Plane"), [""])
sketch11.MapMode = "FlatFace"
sketch11.AttachmentOffset = App.Placement(V(0, 0, 13), App.Rotation())
add_polygon(sketch11, [(-12.5, -35), (-12.5, -50), (-7.5, -50), (-7.5, -35)])
add_polygon(sketch11, [(7.5, -35), (7.5, -50), (12.5, -50), (12.5, -35)])
sketch11.addConstraint(Sketcher.Constraint("Vertical", 0))
sketch11.addConstraint(Sketcher.Constraint("Horizontal", 1))
sketch11.addConstraint(Sketcher.Constraint("Vertical", 2))
sketch11.addConstraint(Sketcher.Constraint("Horizontal", 3))
sketch11.addConstraint(Sketcher.Constraint("Vertical", 4))
sketch11.addConstraint(Sketcher.Constraint("Horizontal", 5))
sketch11.addConstraint(Sketcher.Constraint("Vertical", 6))
sketch11.addConstraint(Sketcher.Constraint("Horizontal", 7))
sketch11.addConstraint(Sketcher.Constraint("Symmetric", 1, 2, 4, 2, -2))
sketch11.addConstraint(Sketcher.Constraint("Symmetric", 3, 2, 6, 2, -2))
sketch11.addConstraint(Sketcher.Constraint("DistanceX", 1, 1, 1, 2, Q("5 mm")))
sketch11.addConstraint(Sketcher.Constraint("DistanceY", 0, 2, 0, 1, Q("15 mm")))
sketch11.addConstraint(Sketcher.Constraint("DistanceY", 0, 2, -1, 1, Q("50 mm")))
sketch11.addConstraint(Sketcher.Constraint("DistanceX", 1, 2, 4, 2, Q("15 mm")))
pad4 = body.newObject("PartDesign::Pad", "Pad003")
pad4.Profile = sketch11
pad4.Length = 48

sketch12 = body.newObject("Sketcher::SketchObject", "Sketch011")
sketch12.AttachmentSupport = (doc.getObject("YZ_Plane"), [""])
sketch12.MapMode = "FlatFace"
sketch12.AttachmentOffset = App.Placement(V(0, 0, 8.5), App.Rotation())
add_polygon(sketch12, [(-6, -13), (-14.003905, -13), (-31, -26.596876), (-31, -33)])
sketch12.addConstraint(Sketcher.Constraint("Horizontal", 0))
sketch12.addConstraint(Sketcher.Constraint("Vertical", 2))
sketch12.addConstraint(Sketcher.Constraint("Parallel", 1, 3))
sketch12.addConstraint(Sketcher.Constraint("DistanceY", 0, 2, -1, 1, Q("13 mm")))
sketch12.addConstraint(Sketcher.Constraint("DistanceX", 1, 2, -1, 1, Q("31 mm")))
sketch12.addConstraint(Sketcher.Constraint("DistanceY", 2, 2, -1, 1, Q("33 mm")))
sketch12.addConstraint(Sketcher.Constraint("DistanceX", 3, 2, -1, 1, Q("6 mm")))
sketch12.addConstraint(Sketcher.Constraint("Distance", 1, Q("21.765621 mm")))
pad5 = body.newObject("PartDesign::Pad", "Pad004")
pad5.Profile = sketch12
pad5.Length = 5
pad5.Reversed = True

sketch13 = body.newObject("Sketcher::SketchObject", "Sketch012")
sketch13.AttachmentSupport = (doc.getObject("YZ_Plane"), [""])
sketch13.MapMode = "FlatFace"
sketch13.AttachmentOffset = App.Placement(V(0, 0, -8.5), App.Rotation())
add_polygon(sketch13, [(-6, -13), (-31, -33), (-31, -26.596876), (-14.003905, -13)])
sketch13.addConstraint(Sketcher.Constraint("Vertical", 1))
sketch13.addConstraint(Sketcher.Constraint("Horizontal", 3))
sketch13.addConstraint(Sketcher.Constraint("Parallel", 0, 2))
sketch13.addConstraint(Sketcher.Constraint("DistanceX", 0, 2, -1, 1, Q("31 mm")))
sketch13.addConstraint(Sketcher.Constraint("DistanceY", 0, 2, -1, 1, Q("33 mm")))
sketch13.addConstraint(Sketcher.Constraint("DistanceY", 2, 2, -1, 1, Q("13 mm")))
sketch13.addConstraint(Sketcher.Constraint("DistanceX", 3, 2, -1, 1, Q("6 mm")))
sketch13.addConstraint(Sketcher.Constraint("Distance", 2, Q("21.765621 mm")))
pad6 = body.newObject("PartDesign::Pad", "Pad005")
pad6.Profile = sketch13
pad6.Length = 5

sketch14 = body.newObject("Sketcher::SketchObject", "Sketch013")
sketch14.AttachmentSupport = (doc.getObject("YZ_Plane"), [""])
sketch14.MapMode = "FlatFace"
sketch14.AttachmentOffset = App.Placement(V(0, 0, -12.5), App.Rotation())
sketch14.addGeometry(Part.Circle(V(-42.5, 38, 0), V(0, 0, 1), 2.5), False)
sketch14.addGeometry(Part.LineSegment(V(-50, 38, 0), V(-50, 23.179811, 0)), False)
sketch14.addGeometry(Part.LineSegment(V(-50, 23.179811, 0), V(-51, 23.179811, 0)), False)
sketch14.addGeometry(Part.LineSegment(V(-51, 23.179811, 0), V(-51, 62, 0)), False)
sketch14.addGeometry(Part.LineSegment(V(-51, 62, 0), V(-34, 62, 0)), False)
sketch14.addGeometry(Part.LineSegment(V(-34, 62, 0), V(-34, 13, 0)), False)
sketch14.addGeometry(Part.LineSegment(V(-34, 13, 0), V(-35, 13, 0)), False)
sketch14.addGeometry(Part.LineSegment(V(-35, 13, 0), V(-35, 38, 0)), False)
sketch14.addGeometry(Part.ArcOfCircle(Part.Circle(V(-42.5, 38, 0), V(0, 0, 1), 7.5), math.radians(0), math.radians(180)), False)
sketch14.addConstraint(Sketcher.Constraint("Coincident", 1, 2, 2, 1))
sketch14.addConstraint(Sketcher.Constraint("Coincident", 2, 2, 3, 1))
sketch14.addConstraint(Sketcher.Constraint("Coincident", 3, 2, 4, 1))
sketch14.addConstraint(Sketcher.Constraint("Coincident", 4, 2, 5, 1))
sketch14.addConstraint(Sketcher.Constraint("Coincident", 5, 2, 6, 1))
sketch14.addConstraint(Sketcher.Constraint("Coincident", 6, 2, 7, 1))
sketch14.addConstraint(Sketcher.Constraint("Tangent", 7, 2, 8, 1))
sketch14.addConstraint(Sketcher.Constraint("Tangent", 8, 2, 1, 1))
sketch14.addConstraint(Sketcher.Constraint("Vertical", 1))
sketch14.addConstraint(Sketcher.Constraint("Horizontal", 2))
sketch14.addConstraint(Sketcher.Constraint("Vertical", 3))
sketch14.addConstraint(Sketcher.Constraint("Horizontal", 4))
sketch14.addConstraint(Sketcher.Constraint("Vertical", 5))
sketch14.addConstraint(Sketcher.Constraint("Horizontal", 6))
sketch14.addConstraint(Sketcher.Constraint("Vertical", 7))
sketch14.addConstraint(Sketcher.Constraint("Coincident", 8, 3, 0, 3))
sketch14.addConstraint(Sketcher.Constraint("Equal", 2, 6))
sketch14.addConstraint(Sketcher.Constraint("Diameter", 0, Q("5 mm")))
sketch14.addConstraint(Sketcher.Constraint("Radius", 8, Q("7.5 mm")))
sketch14.addConstraint(Sketcher.Constraint("DistanceX", 2, 2, 2, 1, Q("1 mm")))
sketch14.addConstraint(Sketcher.Constraint("DistanceY", 5, 2, 5, 1, Q("49 mm")))
sketch14.addConstraint(Sketcher.Constraint("DistanceY", 7, 1, 7, 2, Q("25 mm")))
sketch14.addConstraint(Sketcher.Constraint("DistanceY", -1, 1, 0, 3, Q("38 mm")))
sketch14.addConstraint(Sketcher.Constraint("DistanceX", 1, 2, -1, 1, Q("50 mm")))
sketch14.addConstraint(Sketcher.Constraint("DistanceY", 1, 2, 1, 1, Q("14.820189 mm")))
pocket8 = body.newObject("PartDesign::Pocket", "Pocket007")
pocket8.Profile = sketch14
pocket8.Type = "ThroughAll"
pocket8.Midplane = True

sketch15 = body.newObject("Sketcher::SketchObject", "Sketch014")
sketch15.AttachmentSupport = (doc.getObject("YZ_Plane"), [""])
sketch15.MapMode = "FlatFace"
sketch15.AttachmentOffset = App.Placement(V(0, 0, -12.5), App.Rotation())
add_polygon(sketch15, [(-35, 38), (-10, 13), (-17.071068, 13), (-35, 30.928932)])
sketch15.addConstraint(Sketcher.Constraint("Horizontal", 1))
sketch15.addConstraint(Sketcher.Constraint("Vertical", 3))
sketch15.addConstraint(Sketcher.Constraint("Parallel", 0, 2))
sketch15.addConstraint(Sketcher.Constraint("Equal", 1, 3))
sketch15.addConstraint(Sketcher.Constraint("DistanceX", 0, 2, -1, 1, Q("10 mm")))
sketch15.addConstraint(Sketcher.Constraint("DistanceY", -1, 1, 0, 2, Q("13 mm")))
sketch15.addConstraint(Sketcher.Constraint("DistanceX", 2, 2, -1, 1, Q("35 mm")))
sketch15.addConstraint(Sketcher.Constraint("Distance", 2, Q("25.355339 mm")))
pad7 = body.newObject("PartDesign::Pad", "Pad006")
pad7.Profile = sketch15
pad7.Length = 5

sketch16 = body.newObject("Sketcher::SketchObject", "Sketch015")
sketch16.AttachmentSupport = (doc.getObject("YZ_Plane"), [""])
sketch16.MapMode = "FlatFace"
sketch16.AttachmentOffset = App.Placement(V(0, 0, 12.5), App.Rotation())
add_polygon(sketch16, [(-35, 38), (-35, 30.928932), (-17.071068, 13), (-10, 13)])
sketch16.addConstraint(Sketcher.Constraint("Vertical", 0))
sketch16.addConstraint(Sketcher.Constraint("Horizontal", 2))
sketch16.addConstraint(Sketcher.Constraint("Parallel", 1, 3))
sketch16.addConstraint(Sketcher.Constraint("Equal", 2, 0))
sketch16.addConstraint(Sketcher.Constraint("DistanceX", 0, 2, -1, 1, Q("35 mm")))
sketch16.addConstraint(Sketcher.Constraint("DistanceY", -1, 1, 1, 2, Q("13 mm")))
sketch16.addConstraint(Sketcher.Constraint("DistanceX", 2, 2, -1, 1, Q("10 mm")))
sketch16.addConstraint(Sketcher.Constraint("Distance", 1, Q("25.355339 mm")))
pad8 = body.newObject("PartDesign::Pad", "Pad007")
pad8.Profile = sketch16
pad8.Length = 5
pad8.Reversed = True

sketch17 = body.newObject("Sketcher::SketchObject", "Sketch016")
sketch17.AttachmentSupport = (doc.getObject("XZ_Plane"), [""])
sketch17.MapMode = "FlatFace"
sketch17.AttachmentOffset = App.Placement(V(0, 0, 10), App.Rotation())
sketch17.addGeometry(Part.Circle(V(0, 0, 0), V(0, 0, 1), 10), False)
sketch17.addConstraint(Sketcher.Constraint("Coincident", 0, 3, -1, 1))
sketch17.addConstraint(Sketcher.Constraint("Diameter", 0, Q("20 mm")))
pad9 = body.newObject("PartDesign::Pad", "Pad008")
pad9.Profile = sketch17
pad9.Length = 170

doc.recompute()
